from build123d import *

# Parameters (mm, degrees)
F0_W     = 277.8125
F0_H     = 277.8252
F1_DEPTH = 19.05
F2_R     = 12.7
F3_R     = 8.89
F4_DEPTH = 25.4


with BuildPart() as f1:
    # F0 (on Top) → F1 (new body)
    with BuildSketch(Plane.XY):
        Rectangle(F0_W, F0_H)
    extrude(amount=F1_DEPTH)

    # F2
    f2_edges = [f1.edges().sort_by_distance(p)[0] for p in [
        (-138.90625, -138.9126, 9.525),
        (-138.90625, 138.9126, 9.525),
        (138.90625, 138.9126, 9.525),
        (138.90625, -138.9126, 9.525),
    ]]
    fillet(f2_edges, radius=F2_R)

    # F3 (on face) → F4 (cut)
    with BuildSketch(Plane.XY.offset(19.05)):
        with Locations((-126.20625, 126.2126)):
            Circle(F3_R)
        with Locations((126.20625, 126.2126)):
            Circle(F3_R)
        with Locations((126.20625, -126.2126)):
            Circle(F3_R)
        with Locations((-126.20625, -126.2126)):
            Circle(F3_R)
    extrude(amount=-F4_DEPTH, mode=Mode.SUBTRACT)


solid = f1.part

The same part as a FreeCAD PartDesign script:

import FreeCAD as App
import Part
import Sketcher
from FreeCAD import Vector
Q = App.Units.Quantity


def edges_at(feature, points):
    """Names of the edges that pass closest to the given points."""
    edges = feature.Shape.Edges
    near = lambda p: min(range(len(edges)), key=lambda i: edges[i].distToShape(Part.Vertex(*p))[0])
    return sorted({f"Edge{near(p) + 1}" for p in points})

doc = App.newDocument("Part")
body = doc.addObject("PartDesign::Body", "Body")

# Sketch on XY plane
sketch1 = body.newObject("Sketcher::SketchObject", "Sketch")
sketch1.AttachmentSupport = (doc.getObject("XY_Plane"), [""])
sketch1.MapMode = "FlatFace"
sketch1.addGeometry([
    Part.LineSegment(Vector(-139, 139, 0), Vector(-139, -139, 0)),
    Part.LineSegment(Vector(-139, -139, 0), Vector(139, -139, 0)),
    Part.LineSegment(Vector(139, -139, 0), Vector(139, 139, 0)),
    Part.LineSegment(Vector(139, 139, 0), Vector(-139, 139, 0)),
], False)
sketch1.addConstraint([
    Sketcher.Constraint("Coincident", 0, 2, 1, 1),
    Sketcher.Constraint("Coincident", 1, 2, 2, 1),
    Sketcher.Constraint("Coincident", 2, 2, 3, 1),
    Sketcher.Constraint("Coincident", 3, 2, 0, 1),
    Sketcher.Constraint("Vertical", 0),
    Sketcher.Constraint("Horizontal", 1),
    Sketcher.Constraint("Vertical", 2),
    Sketcher.Constraint("Horizontal", 3),
    Sketcher.Constraint("Symmetric", 0, 2, 2, 2, -1, 1),
    Sketcher.Constraint("DistanceX", 1, 1, 1, 2, Q("10.9375 in")),
    Sketcher.Constraint("DistanceY", 0, 2, 0, 1, Q("10.938 in")),
])
pad1 = body.newObject("PartDesign::Pad", "Pad")
pad1.Profile = sketch1
pad1.Length = Q("0.75 in")
doc.recompute()

fillet = body.newObject("PartDesign::Fillet", "Fillet")
fillet.Base = (pad1, edges_at(pad1, [
    (-138.906, -138.913, 9.525),
    (-138.906, 138.913, 9.525),
    (138.906, 138.913, 9.525),
    (138.906, -138.913, 9.525),
]))
fillet.Radius = Q("0.5 in")

# Sketch on XY plane
sketch2 = body.newObject("Sketcher::SketchObject", "Sketch001")
sketch2.AttachmentSupport = (doc.getObject("XY_Plane"), [""])
sketch2.MapMode = "FlatFace"
sketch2.AttachmentOffset = App.Placement(Vector(0, 0, 0.75 * 25.4), App.Rotation())
sketch2.addGeometry([
    Part.Circle(Vector(-126, 126, 0), Vector(0, 0, 1), 9),
    Part.Circle(Vector(126, 126, 0), Vector(0, 0, 1), 9),
    Part.Circle(Vector(126, -126, 0), Vector(0, 0, 1), 9),
    Part.Circle(Vector(-126, -126, 0), Vector(0, 0, 1), 9),
], False)
sketch2.addConstraint([
    Sketcher.Constraint("Equal", 0, 1),
    Sketcher.Constraint("Equal", 1, 2),
    Sketcher.Constraint("Equal", 2, 3),
    Sketcher.Constraint("Symmetric", 0, 3, 2, 3, -1, 1),
    Sketcher.Constraint("Symmetric", 1, 3, 3, 3, -1, 1),
    Sketcher.Constraint("Symmetric", 0, 3, 1, 3, -2),
    Sketcher.Constraint("Diameter", 0, Q("0.7 in")),
    Sketcher.Constraint("DistanceX", 0, 3, -1, 1, Q("4.96875 in")),
    Sketcher.Constraint("DistanceY", -1, 1, 0, 3, Q("4.969 in")),
])
pocket1 = body.newObject("PartDesign::Pocket", "Pocket")
pocket1.Profile = sketch2
pocket1.Length = Q("1 in")

doc.recompute()
